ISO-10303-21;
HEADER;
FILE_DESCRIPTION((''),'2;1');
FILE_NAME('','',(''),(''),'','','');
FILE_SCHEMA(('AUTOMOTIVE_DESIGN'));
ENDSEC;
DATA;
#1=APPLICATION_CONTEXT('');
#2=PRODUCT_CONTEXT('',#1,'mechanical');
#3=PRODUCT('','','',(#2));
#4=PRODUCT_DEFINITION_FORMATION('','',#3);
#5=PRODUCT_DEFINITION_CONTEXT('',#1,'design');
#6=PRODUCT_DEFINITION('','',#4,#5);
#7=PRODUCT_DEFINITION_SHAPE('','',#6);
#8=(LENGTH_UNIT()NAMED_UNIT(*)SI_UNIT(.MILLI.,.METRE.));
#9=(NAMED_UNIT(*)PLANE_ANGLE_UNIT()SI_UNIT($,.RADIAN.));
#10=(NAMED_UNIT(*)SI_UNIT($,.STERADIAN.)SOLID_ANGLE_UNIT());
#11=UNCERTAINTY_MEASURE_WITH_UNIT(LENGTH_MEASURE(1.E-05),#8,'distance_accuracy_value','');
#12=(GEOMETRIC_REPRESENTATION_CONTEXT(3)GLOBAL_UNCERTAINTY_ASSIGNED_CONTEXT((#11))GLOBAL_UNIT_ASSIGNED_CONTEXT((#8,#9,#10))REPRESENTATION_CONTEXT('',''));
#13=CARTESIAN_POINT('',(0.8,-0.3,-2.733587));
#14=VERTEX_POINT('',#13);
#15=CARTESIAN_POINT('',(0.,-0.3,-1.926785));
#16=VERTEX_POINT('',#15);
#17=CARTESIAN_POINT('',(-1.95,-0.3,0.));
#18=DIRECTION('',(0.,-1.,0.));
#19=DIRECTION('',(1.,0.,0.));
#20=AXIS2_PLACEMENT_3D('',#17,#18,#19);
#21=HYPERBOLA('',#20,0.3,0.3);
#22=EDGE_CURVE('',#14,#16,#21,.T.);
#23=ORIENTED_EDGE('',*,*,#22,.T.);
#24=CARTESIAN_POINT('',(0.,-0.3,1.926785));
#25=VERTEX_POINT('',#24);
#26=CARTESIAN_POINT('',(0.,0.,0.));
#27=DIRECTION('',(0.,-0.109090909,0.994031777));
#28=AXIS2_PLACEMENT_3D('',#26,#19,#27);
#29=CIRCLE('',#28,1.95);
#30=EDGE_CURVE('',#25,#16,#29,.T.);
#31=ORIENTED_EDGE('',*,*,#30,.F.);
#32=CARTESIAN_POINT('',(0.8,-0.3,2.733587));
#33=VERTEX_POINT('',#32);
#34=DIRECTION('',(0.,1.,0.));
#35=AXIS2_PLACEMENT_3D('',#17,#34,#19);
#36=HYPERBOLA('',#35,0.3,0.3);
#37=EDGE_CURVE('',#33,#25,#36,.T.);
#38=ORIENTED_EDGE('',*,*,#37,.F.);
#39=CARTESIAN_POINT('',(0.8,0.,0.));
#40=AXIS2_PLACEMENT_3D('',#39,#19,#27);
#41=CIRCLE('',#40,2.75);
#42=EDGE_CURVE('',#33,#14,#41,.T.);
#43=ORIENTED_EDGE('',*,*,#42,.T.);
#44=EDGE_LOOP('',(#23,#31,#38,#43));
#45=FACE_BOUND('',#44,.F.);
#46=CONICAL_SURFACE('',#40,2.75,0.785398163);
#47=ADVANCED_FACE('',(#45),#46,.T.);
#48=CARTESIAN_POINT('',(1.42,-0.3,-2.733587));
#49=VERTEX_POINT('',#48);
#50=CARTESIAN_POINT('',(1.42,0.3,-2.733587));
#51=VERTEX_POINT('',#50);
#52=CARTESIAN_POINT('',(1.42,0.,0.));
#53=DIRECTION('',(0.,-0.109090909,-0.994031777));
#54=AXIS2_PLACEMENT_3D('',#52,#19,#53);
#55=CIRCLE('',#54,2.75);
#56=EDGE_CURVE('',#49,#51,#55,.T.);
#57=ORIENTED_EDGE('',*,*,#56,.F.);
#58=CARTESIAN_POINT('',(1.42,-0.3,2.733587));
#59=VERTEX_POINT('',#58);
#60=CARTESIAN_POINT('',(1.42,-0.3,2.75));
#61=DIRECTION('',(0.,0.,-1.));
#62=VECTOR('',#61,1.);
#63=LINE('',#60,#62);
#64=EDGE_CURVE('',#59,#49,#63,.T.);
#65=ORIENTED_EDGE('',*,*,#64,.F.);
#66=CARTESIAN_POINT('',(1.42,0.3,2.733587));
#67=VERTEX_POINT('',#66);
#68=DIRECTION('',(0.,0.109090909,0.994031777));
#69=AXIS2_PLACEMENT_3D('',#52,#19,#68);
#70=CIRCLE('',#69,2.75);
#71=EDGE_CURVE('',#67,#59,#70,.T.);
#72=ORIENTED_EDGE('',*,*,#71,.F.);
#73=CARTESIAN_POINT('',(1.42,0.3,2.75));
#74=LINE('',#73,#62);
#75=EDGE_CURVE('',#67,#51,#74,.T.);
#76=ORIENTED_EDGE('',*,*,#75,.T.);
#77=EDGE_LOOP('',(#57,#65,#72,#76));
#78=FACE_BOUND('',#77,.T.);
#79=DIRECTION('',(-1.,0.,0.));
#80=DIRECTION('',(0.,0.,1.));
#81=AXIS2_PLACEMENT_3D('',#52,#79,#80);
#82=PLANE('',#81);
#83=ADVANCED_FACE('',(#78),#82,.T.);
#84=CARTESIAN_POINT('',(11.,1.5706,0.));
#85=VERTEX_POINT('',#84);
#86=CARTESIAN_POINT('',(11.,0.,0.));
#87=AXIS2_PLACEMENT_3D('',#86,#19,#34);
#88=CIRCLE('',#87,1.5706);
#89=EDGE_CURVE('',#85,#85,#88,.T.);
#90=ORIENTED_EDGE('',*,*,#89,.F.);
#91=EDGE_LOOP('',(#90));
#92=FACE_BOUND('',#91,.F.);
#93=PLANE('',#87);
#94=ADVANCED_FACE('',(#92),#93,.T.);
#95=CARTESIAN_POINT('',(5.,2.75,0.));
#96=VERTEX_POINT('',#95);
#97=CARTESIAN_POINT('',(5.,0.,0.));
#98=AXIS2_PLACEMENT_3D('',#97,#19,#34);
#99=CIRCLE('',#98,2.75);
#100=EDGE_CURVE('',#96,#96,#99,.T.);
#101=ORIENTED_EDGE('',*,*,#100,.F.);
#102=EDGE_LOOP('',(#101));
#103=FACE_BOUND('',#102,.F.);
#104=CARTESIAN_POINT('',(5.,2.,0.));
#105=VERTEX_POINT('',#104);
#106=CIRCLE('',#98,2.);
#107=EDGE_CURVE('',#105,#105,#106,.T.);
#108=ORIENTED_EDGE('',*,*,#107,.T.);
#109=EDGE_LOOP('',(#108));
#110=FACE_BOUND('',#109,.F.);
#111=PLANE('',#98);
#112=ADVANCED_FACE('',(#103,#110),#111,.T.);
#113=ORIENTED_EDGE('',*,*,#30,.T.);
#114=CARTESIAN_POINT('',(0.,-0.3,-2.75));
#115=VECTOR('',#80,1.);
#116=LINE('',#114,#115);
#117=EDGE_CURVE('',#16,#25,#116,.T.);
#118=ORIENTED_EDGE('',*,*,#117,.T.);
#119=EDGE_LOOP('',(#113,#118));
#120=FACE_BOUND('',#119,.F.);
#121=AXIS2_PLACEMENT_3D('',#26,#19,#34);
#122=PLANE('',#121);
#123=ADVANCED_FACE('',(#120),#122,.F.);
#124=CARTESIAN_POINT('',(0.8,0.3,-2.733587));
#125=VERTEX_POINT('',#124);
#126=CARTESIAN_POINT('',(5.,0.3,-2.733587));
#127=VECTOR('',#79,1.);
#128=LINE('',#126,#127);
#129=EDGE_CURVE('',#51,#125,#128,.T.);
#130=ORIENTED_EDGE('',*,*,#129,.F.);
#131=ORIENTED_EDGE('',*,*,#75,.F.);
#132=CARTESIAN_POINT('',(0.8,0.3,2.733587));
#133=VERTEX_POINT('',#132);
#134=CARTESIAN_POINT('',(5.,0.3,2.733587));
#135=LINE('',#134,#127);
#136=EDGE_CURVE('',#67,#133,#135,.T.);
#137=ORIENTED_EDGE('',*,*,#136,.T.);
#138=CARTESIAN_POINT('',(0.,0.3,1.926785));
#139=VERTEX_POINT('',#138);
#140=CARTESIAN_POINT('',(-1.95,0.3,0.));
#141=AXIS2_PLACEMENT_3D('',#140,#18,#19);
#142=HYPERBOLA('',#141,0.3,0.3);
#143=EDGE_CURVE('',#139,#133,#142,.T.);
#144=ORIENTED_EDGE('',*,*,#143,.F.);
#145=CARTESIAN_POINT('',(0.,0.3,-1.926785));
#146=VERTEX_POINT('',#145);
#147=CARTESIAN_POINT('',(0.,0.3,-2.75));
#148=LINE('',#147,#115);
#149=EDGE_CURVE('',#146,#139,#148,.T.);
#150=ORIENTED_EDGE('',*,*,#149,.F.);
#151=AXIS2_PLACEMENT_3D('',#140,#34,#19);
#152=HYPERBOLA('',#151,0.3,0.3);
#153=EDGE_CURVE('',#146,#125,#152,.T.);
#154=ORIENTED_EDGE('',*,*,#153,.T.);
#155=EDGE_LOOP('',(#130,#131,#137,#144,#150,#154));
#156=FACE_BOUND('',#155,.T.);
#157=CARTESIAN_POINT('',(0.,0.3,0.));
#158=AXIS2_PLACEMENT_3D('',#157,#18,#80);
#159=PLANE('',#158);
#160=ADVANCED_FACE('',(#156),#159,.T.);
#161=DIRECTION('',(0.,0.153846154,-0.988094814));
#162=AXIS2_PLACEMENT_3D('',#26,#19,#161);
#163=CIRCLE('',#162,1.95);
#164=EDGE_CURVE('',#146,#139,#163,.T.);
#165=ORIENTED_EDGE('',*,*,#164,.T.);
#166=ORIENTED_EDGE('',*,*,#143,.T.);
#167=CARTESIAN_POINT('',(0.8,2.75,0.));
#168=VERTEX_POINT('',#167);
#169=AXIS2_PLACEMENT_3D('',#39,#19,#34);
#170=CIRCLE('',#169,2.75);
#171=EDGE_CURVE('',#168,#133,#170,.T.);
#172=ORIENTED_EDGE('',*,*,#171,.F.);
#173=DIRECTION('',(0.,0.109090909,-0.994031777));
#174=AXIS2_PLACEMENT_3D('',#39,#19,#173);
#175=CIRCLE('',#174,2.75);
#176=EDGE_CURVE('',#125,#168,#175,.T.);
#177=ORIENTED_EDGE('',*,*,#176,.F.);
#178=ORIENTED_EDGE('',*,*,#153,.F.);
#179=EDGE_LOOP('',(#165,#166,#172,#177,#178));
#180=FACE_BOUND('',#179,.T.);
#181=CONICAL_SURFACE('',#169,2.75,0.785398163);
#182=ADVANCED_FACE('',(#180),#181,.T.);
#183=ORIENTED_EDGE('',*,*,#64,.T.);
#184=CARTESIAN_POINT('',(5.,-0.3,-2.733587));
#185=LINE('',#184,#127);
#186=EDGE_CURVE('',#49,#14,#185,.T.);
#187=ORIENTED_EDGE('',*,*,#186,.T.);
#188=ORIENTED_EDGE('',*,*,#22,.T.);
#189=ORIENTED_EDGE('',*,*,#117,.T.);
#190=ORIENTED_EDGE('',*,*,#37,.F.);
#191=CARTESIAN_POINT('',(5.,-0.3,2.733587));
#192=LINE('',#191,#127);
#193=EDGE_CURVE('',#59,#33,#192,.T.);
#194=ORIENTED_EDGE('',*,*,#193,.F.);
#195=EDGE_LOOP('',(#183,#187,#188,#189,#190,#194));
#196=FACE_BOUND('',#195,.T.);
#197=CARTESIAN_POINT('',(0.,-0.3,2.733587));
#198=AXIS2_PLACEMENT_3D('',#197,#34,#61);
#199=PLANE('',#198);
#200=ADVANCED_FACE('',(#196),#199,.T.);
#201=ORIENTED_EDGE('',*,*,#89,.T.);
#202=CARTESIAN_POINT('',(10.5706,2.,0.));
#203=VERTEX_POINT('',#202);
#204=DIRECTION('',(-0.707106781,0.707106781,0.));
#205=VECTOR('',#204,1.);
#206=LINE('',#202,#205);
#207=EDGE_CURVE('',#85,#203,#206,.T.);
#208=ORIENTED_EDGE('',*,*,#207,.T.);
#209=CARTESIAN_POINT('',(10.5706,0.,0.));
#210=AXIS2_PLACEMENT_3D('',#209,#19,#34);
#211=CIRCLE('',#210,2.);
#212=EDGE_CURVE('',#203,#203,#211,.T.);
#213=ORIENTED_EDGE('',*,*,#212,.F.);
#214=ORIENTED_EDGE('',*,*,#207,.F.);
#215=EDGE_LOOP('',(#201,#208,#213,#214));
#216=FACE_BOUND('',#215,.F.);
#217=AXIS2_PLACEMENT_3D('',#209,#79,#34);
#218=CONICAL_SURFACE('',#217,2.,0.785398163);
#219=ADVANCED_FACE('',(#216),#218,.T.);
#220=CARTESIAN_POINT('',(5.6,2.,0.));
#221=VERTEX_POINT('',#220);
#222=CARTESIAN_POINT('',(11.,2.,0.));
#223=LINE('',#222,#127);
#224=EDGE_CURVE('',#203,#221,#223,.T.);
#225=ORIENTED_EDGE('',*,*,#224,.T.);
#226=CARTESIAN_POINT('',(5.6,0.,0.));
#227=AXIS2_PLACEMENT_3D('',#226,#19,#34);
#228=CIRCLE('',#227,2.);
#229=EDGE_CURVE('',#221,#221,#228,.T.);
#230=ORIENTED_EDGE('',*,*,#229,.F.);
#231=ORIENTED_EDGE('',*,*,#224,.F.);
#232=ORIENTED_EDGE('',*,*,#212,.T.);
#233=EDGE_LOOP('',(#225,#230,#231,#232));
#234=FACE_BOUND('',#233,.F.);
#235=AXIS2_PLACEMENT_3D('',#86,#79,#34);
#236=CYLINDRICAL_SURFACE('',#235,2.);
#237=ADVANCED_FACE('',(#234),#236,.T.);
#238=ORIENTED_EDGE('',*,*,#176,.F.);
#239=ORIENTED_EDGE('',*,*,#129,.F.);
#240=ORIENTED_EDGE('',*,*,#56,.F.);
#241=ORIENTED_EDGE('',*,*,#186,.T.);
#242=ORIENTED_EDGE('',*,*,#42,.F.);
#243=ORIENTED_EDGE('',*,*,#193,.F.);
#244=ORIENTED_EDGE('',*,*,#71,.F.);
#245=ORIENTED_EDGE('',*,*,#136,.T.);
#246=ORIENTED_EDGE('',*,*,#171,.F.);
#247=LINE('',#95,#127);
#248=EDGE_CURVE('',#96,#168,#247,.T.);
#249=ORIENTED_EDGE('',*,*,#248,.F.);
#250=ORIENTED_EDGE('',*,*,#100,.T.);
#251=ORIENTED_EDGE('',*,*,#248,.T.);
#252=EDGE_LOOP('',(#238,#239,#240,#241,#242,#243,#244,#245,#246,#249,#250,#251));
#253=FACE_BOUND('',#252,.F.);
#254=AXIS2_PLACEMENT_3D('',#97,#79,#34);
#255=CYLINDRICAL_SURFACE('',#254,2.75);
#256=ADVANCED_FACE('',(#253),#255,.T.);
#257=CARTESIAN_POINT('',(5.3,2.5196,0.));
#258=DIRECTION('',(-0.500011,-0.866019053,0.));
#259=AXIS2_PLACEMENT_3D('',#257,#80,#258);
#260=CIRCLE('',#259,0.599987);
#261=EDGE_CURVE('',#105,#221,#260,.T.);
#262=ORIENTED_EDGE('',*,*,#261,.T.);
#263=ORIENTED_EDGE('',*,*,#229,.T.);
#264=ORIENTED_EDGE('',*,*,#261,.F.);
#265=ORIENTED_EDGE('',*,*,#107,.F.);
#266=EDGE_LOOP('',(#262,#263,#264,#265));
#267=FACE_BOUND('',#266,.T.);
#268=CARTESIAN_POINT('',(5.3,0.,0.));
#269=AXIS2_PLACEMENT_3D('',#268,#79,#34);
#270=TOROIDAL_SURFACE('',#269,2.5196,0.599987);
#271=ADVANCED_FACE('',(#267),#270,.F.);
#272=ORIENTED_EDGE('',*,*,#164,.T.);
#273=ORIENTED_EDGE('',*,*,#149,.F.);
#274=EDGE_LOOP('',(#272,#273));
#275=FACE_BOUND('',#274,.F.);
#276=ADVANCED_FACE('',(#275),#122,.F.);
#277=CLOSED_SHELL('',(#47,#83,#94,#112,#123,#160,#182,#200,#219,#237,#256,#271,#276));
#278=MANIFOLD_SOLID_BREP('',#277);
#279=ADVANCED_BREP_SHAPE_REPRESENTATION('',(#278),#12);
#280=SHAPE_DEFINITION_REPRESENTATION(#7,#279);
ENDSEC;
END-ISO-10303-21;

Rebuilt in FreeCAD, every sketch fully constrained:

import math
import FreeCAD as App
import Part
import Sketcher
from FreeCAD import Vector


def edges_at(feature, points):
    """Names of the edges that pass closest to the given points."""
    edges = feature.Shape.Edges
    near = lambda p: min(range(len(edges)), key=lambda i: edges[i].distToShape(Part.Vertex(*p))[0])
    return sorted({f"Edge{near(p) + 1}" for p in points})


def add_polygon(sketch, points):
    """Adds a closed chain of lines whose ends are joined by coincident constraints."""
    first, n = sketch.GeometryCount, len(points)
    for a, b in zip(points, points[1:] + points[:1]):
        sketch.addGeometry(Part.LineSegment(App.Vector(*a, 0), App.Vector(*b, 0)), False)
    for i in range(n):
        sketch.addConstraint(Sketcher.Constraint("Coincident", first + i, 2, first + (i + 1) % n, 1))

doc = App.newDocument("Part")
params = doc.addObject("Spreadsheet::Sheet", "Params")
for row, (alias, value) in enumerate([
    ("sketch1_width", "6 mm"),
    ("sketch1_width2", "5 mm"),
    ("sketch1_height", "2 mm"),
    ("sketch1_height2", "2.75 mm"),
    ("revolution_angle", "360 deg"),
    ("sketch2_width", "0.6 mm"),
    ("sketch2_height", "5.5 mm"),
    ("pocket1_length", "1.42 mm"),
    ("chamfer_size", "0.8 mm"),
    ("chamfer2_size", "0.4294 mm"),
    ("chamfer2_size2", "0.4294 mm"),
    ("sketch3_radius", "0.6 mm"),
    ("sketch3_width", "0.6 mm"),
    ("groove_angle", "360 deg"),
], start=1):
    params.set(f"A{row}", alias)
    params.set(f"B{row}", "=" + value)
    params.setAlias(f"B{row}", alias)

body = doc.addObject("PartDesign::Body", "Body")

# Sketch on XY plane
sketch1 = body.newObject("Sketcher::SketchObject", "Sketch")
sketch1.AttachmentSupport = (doc.getObject("XY_Plane"), [""])
sketch1.MapMode = "FlatFace"
add_polygon(sketch1, [(0, 2.8), (0, 0), (11, 0), (11, 2), (5, 2), (5, 2.8)])  # lines 0-5
sketch1.addConstraint(Sketcher.Constraint("Vertical", 0))
sketch1.addConstraint(Sketcher.Constraint("Horizontal", 1))
sketch1.addConstraint(Sketcher.Constraint("Vertical", 2))
sketch1.addConstraint(Sketcher.Constraint("Horizontal", 3))
sketch1.addConstraint(Sketcher.Constraint("Vertical", 4))
sketch1.addConstraint(Sketcher.Constraint("Horizontal", 5))
sketch1.addConstraint(Sketcher.Constraint("Coincident", 0, 2, -1, 1))
sketch1.addConstraint(Sketcher.Constraint("DistanceX", 3, 2, 3, 1, 6.0))
sketch1.addConstraint(Sketcher.Constraint("DistanceX", 5, 2, 5, 1, 5.0))
sketch1.addConstraint(Sketcher.Constraint("DistanceY", 2, 1, 2, 2, 2.0))
sketch1.addConstraint(Sketcher.Constraint("DistanceY", 0, 2, 0, 1, 2.75))
sketch1.setExpression("Constraints[13]", "Params.sketch1_width")
sketch1.setExpression("Constraints[14]", "Params.sketch1_width2")
sketch1.setExpression("Constraints[15]", "Params.sketch1_height")
sketch1.setExpression("Constraints[16]", "Params.sketch1_height2")
revolution = body.newObject("PartDesign::Revolution", "Revolution")
revolution.Profile = sketch1
revolution.ReferenceAxis = (sketch1, ["H_Axis"])
revolution.setExpression("Angle", "Params.revolution_angle")

# Sketch on YZ plane
sketch2 = body.newObject("Sketcher::SketchObject", "Sketch001")
sketch2.AttachmentSupport = (doc.getObject("YZ_Plane"), [""])
sketch2.MapMode = "FlatFace"
add_polygon(sketch2, [(0.3, -2.8), (-0.3, -2.8), (-0.3, 2.8), (0.3, 2.8)])  # lines 0-3
sketch2.addConstraint(Sketcher.Constraint("Horizontal", 0))
sketch2.addConstraint(Sketcher.Constraint("Vertical", 1))
sketch2.addConstraint(Sketcher.Constraint("Horizontal", 2))
sketch2.addConstraint(Sketcher.Constraint("Vertical", 3))
sketch2.addConstraint(Sketcher.Constraint("Symmetric", 0, 2, 2, 2, -1, 1))
sketch2.addConstraint(Sketcher.Constraint("DistanceX", 0, 2, 0, 1, 0.6))
sketch2.addConstraint(Sketcher.Constraint("DistanceY", 1, 1, 1, 2, 5.5))
sketch2.setExpression("Constraints[9]", "Params.sketch2_width")
sketch2.setExpression("Constraints[10]", "Params.sketch2_height")
pocket1 = body.newObject("PartDesign::Pocket", "Pocket")
pocket1.Profile = sketch2
pocket1.setExpression("Length", "Params.pocket1_length")
pocket1.Reversed = True
doc.recompute()

chamfer = body.newObject("PartDesign::Chamfer", "Chamfer")
chamfer.Base = (pocket1, edges_at(pocket1, [(0, 2.048, -1.835), (0, 2.048, 1.835), (0, -2.75, 0)]))
chamfer.setExpression("Size", "Params.chamfer_size")
doc.recompute()

chamfer2 = body.newObject("PartDesign::Chamfer", "Chamfer001")
chamfer2.Base = (chamfer, edges_at(chamfer, [(11, -2, 0)]))
chamfer2.ChamferType = "Two distances"
chamfer2.setExpression("Size", "Params.chamfer2_size")
chamfer2.setExpression("Size2", "Params.chamfer2_size2")

# Sketch on XY plane
sketch3 = body.newObject("Sketcher::SketchObject", "Sketch002")
sketch3.AttachmentSupport = (doc.getObject("XY_Plane"), [""])
sketch3.MapMode = "FlatFace"
sketch3.addGeometry(Part.ArcOfCircle(Part.Circle(Vector(5.3, 2.5, 0), Vector(0, 0, 1), 0.6), math.radians(-120), math.radians(-60)), False)
sketch3.addGeometry(Part.LineSegment(Vector(5.6, 2, 0), Vector(5, 2, 0)), False)
sketch3.addConstraint(Sketcher.Constraint("Coincident", 0, 1, 1, 2))
sketch3.addConstraint(Sketcher.Constraint("Coincident", 1, 1, 0, 2))
sketch3.addConstraint(Sketcher.Constraint("Horizontal", 1))
sketch3.addConstraint(Sketcher.Constraint("Radius", 0, 0.6))
sketch3.addConstraint(Sketcher.Constraint("DistanceX", 1, 2, 1, 1, 0.6))
sketch3.addConstraint(Sketcher.Constraint("DistanceX", -1, 1, 0, 1, 5.0))
sketch3.addConstraint(Sketcher.Constraint("DistanceY", -1, 1, 0, 1, 2.0))
sketch3.setExpression("Constraints[3]", "Params.sketch3_radius")
sketch3.setExpression("Constraints[4]", "Params.sketch3_width")
groove = body.newObject("PartDesign::Groove", "Groove")
groove.Profile = sketch3
groove.ReferenceAxis = (sketch3, ["H_Axis"])
groove.setExpression("Angle", "Params.groove_angle")

doc.recompute()
